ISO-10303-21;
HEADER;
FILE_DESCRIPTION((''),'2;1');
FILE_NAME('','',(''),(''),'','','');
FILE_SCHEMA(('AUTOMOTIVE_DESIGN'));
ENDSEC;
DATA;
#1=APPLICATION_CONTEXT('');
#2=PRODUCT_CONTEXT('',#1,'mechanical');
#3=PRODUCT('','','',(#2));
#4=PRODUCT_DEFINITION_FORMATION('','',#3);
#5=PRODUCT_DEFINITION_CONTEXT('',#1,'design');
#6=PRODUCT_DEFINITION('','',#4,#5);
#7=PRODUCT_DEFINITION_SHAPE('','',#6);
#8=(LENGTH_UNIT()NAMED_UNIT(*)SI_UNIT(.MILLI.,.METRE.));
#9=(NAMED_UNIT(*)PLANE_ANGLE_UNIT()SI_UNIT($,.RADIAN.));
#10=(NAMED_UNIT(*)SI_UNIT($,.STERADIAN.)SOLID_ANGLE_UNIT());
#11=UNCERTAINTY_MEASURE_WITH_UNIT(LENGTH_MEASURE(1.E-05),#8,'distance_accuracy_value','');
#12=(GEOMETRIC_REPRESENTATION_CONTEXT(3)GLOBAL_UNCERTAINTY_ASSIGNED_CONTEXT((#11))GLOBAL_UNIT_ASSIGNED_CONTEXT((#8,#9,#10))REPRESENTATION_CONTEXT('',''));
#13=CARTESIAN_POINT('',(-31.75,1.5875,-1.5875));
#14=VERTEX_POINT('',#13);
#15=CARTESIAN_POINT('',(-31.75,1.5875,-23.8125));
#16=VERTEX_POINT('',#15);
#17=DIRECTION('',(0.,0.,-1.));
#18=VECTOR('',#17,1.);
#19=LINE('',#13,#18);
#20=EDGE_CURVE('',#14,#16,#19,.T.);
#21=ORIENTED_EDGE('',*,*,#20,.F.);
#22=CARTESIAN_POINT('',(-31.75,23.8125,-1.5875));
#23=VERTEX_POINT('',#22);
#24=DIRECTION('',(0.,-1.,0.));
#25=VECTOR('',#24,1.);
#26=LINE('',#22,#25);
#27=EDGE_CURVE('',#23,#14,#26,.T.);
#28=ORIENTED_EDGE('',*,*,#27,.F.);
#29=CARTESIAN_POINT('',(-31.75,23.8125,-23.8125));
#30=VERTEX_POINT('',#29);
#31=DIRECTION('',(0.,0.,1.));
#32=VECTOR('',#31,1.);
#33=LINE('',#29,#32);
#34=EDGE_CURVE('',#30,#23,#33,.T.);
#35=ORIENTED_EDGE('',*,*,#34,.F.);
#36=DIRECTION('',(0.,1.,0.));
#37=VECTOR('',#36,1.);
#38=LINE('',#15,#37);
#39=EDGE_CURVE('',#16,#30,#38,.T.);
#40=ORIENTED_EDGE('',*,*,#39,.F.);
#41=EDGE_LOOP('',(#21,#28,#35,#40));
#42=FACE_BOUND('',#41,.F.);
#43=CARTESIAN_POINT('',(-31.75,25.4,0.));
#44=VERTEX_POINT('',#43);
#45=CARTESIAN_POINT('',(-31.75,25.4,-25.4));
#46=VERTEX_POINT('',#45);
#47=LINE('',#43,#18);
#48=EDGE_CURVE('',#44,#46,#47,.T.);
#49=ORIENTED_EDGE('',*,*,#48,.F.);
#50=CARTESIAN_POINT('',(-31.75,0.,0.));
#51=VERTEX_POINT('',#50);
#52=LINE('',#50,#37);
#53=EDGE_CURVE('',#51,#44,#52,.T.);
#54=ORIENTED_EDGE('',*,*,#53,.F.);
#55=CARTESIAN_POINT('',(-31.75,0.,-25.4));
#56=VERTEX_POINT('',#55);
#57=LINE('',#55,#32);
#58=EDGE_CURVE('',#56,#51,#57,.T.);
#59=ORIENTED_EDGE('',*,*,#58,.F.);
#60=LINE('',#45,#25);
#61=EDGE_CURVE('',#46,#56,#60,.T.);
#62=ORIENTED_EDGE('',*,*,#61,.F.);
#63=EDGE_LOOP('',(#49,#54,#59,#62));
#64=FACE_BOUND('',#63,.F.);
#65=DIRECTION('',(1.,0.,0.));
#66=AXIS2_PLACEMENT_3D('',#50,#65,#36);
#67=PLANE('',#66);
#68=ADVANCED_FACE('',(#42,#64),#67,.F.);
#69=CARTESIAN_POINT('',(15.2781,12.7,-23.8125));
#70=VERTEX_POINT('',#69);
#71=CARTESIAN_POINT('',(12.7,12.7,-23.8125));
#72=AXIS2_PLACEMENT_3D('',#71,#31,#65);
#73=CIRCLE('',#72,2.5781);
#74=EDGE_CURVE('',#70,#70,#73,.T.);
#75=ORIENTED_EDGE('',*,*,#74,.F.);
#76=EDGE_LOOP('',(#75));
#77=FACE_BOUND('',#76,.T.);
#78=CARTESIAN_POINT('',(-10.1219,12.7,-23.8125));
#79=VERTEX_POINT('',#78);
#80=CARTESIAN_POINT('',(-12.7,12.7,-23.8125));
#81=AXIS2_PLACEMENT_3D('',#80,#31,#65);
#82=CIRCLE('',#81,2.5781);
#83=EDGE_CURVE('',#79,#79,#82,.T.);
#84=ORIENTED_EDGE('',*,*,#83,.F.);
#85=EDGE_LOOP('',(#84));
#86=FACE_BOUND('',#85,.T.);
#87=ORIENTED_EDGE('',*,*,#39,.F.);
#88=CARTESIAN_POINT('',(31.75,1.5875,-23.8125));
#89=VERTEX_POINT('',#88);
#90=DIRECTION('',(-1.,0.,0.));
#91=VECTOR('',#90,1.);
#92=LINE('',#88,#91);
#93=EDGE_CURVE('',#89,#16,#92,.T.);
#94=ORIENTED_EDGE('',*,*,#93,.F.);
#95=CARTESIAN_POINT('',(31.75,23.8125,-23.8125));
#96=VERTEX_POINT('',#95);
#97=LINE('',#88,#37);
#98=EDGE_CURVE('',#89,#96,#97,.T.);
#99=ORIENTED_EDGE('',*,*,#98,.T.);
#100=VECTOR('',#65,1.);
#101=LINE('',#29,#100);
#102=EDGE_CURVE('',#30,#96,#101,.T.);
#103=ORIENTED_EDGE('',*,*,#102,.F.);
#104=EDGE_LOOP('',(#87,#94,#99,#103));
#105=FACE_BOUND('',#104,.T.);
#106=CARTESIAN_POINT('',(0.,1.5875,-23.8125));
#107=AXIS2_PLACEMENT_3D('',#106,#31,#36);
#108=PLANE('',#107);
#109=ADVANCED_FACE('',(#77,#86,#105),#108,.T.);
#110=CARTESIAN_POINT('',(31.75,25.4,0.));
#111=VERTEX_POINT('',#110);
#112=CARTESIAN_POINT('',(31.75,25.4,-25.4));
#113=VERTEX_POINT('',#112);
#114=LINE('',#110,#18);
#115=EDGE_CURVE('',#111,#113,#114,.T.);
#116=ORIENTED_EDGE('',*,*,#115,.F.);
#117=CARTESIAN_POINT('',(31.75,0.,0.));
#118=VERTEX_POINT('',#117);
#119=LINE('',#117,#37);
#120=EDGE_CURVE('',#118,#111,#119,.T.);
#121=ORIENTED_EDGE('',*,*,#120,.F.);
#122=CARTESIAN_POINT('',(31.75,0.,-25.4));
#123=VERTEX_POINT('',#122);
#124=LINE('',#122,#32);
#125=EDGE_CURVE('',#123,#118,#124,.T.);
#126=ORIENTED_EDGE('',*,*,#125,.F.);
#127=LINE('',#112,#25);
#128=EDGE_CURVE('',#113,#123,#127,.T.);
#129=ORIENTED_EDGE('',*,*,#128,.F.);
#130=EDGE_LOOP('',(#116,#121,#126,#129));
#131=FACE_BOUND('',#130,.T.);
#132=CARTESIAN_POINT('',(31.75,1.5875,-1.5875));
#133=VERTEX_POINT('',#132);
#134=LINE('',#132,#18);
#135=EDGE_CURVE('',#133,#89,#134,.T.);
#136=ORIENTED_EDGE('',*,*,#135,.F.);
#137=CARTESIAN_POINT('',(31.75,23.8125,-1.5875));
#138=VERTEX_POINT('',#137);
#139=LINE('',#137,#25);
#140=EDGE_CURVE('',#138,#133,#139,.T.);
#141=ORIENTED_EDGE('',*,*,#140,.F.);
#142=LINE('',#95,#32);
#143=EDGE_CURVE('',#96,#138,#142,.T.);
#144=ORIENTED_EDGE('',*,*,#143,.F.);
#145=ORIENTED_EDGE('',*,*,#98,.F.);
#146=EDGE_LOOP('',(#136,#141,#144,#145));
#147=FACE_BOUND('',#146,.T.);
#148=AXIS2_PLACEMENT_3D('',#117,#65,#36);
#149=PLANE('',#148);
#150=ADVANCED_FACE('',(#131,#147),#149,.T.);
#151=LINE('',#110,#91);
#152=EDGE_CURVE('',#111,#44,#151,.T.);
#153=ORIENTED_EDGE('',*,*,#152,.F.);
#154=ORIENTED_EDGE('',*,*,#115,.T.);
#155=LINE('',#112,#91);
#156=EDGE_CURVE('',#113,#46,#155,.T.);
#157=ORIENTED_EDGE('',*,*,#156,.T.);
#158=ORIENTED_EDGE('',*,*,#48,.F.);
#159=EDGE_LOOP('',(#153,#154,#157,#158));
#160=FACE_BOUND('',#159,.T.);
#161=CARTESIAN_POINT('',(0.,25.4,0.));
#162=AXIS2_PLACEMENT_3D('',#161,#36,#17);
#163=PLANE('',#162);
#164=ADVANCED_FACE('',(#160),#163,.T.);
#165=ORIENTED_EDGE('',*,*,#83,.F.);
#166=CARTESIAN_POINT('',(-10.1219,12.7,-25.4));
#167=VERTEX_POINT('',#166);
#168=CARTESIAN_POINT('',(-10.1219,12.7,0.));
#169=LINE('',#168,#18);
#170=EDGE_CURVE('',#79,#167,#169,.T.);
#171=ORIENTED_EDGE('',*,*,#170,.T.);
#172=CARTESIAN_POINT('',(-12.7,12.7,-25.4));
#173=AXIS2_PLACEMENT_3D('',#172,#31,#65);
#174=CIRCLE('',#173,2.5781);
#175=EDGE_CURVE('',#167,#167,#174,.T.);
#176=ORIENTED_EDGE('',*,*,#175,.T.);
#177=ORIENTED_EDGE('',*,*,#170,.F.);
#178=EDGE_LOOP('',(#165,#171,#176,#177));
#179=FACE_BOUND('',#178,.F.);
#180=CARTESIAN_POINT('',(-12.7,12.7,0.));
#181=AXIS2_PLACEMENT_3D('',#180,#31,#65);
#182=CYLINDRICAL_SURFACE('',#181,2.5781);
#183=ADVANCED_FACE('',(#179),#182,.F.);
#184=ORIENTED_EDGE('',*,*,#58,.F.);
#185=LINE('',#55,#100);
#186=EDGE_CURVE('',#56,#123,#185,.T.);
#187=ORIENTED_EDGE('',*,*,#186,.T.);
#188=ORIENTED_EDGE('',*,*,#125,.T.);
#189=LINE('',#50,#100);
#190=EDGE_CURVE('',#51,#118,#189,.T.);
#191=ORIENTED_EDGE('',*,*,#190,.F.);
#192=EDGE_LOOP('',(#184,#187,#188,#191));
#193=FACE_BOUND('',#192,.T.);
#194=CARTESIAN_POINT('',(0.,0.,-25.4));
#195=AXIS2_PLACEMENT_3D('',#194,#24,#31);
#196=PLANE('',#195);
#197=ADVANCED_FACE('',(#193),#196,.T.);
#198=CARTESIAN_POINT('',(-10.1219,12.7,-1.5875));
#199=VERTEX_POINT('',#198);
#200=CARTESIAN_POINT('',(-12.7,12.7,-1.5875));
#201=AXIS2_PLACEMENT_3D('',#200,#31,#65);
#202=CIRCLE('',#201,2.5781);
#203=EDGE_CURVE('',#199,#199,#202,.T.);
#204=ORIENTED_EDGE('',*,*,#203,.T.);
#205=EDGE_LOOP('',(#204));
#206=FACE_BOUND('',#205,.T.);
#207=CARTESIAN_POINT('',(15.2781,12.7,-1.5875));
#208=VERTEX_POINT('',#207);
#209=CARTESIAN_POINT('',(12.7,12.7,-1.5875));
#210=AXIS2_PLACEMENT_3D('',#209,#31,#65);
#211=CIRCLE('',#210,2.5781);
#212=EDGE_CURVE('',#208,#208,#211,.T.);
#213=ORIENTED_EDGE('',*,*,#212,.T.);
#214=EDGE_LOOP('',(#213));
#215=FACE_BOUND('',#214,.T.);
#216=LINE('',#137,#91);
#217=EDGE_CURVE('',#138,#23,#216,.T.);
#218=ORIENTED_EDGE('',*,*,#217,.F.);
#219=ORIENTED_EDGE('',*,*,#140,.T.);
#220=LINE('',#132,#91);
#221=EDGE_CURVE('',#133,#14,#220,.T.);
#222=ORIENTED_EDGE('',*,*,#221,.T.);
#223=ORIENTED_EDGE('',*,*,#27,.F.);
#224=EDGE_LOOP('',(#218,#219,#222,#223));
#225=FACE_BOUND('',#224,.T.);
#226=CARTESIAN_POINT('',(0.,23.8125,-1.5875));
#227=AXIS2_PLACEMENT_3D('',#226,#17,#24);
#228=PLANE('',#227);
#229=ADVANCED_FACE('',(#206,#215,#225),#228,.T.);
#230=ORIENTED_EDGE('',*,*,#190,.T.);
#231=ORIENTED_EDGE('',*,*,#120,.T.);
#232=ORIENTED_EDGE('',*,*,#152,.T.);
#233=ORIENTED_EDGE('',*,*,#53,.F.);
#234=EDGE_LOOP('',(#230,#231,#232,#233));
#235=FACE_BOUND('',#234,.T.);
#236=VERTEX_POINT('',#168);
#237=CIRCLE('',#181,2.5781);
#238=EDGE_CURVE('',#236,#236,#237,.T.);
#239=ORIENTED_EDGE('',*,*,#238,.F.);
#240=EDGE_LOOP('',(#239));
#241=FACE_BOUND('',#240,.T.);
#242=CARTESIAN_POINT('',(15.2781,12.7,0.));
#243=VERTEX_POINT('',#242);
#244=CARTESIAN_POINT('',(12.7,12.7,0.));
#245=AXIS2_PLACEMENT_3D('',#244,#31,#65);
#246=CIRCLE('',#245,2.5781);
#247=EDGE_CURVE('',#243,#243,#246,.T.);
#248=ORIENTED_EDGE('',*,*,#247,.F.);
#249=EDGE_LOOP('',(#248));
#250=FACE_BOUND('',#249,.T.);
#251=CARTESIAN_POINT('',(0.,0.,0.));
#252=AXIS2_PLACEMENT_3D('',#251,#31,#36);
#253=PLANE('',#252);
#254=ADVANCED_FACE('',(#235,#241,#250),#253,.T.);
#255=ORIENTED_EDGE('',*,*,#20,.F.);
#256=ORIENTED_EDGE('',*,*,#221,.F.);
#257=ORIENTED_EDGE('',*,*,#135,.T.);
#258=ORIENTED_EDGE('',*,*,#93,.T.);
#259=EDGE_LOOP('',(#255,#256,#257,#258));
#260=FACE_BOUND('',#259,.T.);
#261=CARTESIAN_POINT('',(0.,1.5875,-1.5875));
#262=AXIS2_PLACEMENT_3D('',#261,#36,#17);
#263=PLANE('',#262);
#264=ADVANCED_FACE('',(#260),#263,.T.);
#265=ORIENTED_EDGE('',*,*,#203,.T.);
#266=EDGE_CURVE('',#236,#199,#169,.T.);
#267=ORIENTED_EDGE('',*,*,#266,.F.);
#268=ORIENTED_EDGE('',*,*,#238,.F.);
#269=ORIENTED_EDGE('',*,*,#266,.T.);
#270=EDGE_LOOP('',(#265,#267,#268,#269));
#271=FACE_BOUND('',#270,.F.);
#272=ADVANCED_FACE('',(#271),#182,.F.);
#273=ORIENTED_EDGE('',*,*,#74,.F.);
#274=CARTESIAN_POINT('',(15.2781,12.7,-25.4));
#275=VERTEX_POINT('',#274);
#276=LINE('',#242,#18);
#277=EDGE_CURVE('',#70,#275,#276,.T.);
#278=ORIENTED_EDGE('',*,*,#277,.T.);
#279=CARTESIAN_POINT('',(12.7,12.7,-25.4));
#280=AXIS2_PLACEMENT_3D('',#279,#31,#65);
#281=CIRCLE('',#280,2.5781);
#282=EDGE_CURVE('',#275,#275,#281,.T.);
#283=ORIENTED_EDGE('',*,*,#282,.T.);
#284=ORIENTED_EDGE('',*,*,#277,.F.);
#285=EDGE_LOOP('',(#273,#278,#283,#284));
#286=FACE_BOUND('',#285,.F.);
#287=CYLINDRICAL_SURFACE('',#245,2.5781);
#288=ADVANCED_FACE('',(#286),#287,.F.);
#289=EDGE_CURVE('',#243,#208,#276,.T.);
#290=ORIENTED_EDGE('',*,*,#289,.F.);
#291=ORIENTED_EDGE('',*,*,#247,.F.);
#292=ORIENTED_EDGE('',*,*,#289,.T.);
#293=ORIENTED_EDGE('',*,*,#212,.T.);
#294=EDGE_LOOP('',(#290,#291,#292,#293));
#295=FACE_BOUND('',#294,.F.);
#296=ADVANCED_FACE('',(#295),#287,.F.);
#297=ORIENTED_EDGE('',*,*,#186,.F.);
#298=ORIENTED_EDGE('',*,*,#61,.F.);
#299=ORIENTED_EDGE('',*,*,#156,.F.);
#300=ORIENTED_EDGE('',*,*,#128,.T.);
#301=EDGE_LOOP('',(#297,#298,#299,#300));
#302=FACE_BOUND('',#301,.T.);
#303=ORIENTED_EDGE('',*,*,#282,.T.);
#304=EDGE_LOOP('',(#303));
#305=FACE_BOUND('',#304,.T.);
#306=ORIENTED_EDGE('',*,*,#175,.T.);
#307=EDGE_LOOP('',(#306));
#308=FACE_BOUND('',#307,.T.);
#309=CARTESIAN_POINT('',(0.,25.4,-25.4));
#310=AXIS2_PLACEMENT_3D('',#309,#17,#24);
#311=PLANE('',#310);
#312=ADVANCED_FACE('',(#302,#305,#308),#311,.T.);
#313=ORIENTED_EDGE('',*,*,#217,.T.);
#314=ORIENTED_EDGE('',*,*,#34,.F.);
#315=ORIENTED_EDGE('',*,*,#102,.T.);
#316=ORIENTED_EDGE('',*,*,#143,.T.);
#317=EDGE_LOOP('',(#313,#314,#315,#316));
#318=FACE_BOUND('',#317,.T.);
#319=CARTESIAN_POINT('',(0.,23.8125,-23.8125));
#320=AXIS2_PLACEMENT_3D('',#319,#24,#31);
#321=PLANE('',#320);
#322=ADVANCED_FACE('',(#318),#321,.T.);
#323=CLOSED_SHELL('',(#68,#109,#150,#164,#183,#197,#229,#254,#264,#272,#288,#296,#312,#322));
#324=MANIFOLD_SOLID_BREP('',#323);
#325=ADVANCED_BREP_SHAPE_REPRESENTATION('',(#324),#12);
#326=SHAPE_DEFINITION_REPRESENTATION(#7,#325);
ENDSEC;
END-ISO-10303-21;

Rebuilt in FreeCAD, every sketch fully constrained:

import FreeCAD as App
import Part
import Sketcher

V = App.Vector
Q = App.Units.Quantity

doc = App.newDocument("Part")
body = doc.addObject("PartDesign::Body", "Body")

# Sketch on YZ plane
sketch1 = body.newObject("Sketcher::SketchObject", "Sketch")
sketch1.AttachmentSupport = (doc.getObject("YZ_Plane"), [""])
sketch1.MapMode = "FlatFace"
sketch1.addGeometry(Part.LineSegment(V(25.4, 0, 0), V(0, 0, 0)), False)
sketch1.addGeometry(Part.LineSegment(V(0, 0, 0), V(0, -25.4, 0)), False)
sketch1.addGeometry(Part.LineSegment(V(0, -25.4, 0), V(25.4, -25.4, 0)), False)
sketch1.addGeometry(Part.LineSegment(V(25.4, -25.4, 0), V(25.4, 0, 0)), False)
sketch1.addGeometry(Part.LineSegment(V(23.8125, -1.5875, 0), V(23.8125, -23.8125, 0)), False)
sketch1.addGeometry(Part.LineSegment(V(23.8125, -23.8125, 0), V(1.5875, -23.8125, 0)), False)
sketch1.addGeometry(Part.LineSegment(V(1.5875, -23.8125, 0), V(1.5875, -1.5875, 0)), False)
sketch1.addGeometry(Part.LineSegment(V(1.5875, -1.5875, 0), V(23.8125, -1.5875, 0)), False)
sketch1.addConstraint(Sketcher.Constraint("Coincident", 0, 2, 1, 1))
sketch1.addConstraint(Sketcher.Constraint("Coincident", 1, 2, 2, 1))
sketch1.addConstraint(Sketcher.Constraint("Coincident", 2, 2, 3, 1))
sketch1.addConstraint(Sketcher.Constraint("Coincident", 3, 2, 0, 1))
sketch1.addConstraint(Sketcher.Constraint("Coincident", 4, 2, 5, 1))
sketch1.addConstraint(Sketcher.Constraint("Coincident", 5, 2, 6, 1))
sketch1.addConstraint(Sketcher.Constraint("Coincident", 6, 2, 7, 1))
sketch1.addConstraint(Sketcher.Constraint("Coincident", 7, 2, 4, 1))
sketch1.addConstraint(Sketcher.Constraint("Horizontal", 0))
sketch1.addConstraint(Sketcher.Constraint("Vertical", 1))
sketch1.addConstraint(Sketcher.Constraint("Horizontal", 2))
sketch1.addConstraint(Sketcher.Constraint("Vertical", 3))
sketch1.addConstraint(Sketcher.Constraint("Vertical", 4))
sketch1.addConstraint(Sketcher.Constraint("Horizontal", 5))
sketch1.addConstraint(Sketcher.Constraint("Vertical", 6))
sketch1.addConstraint(Sketcher.Constraint("Horizontal", 7))
sketch1.addConstraint(Sketcher.Constraint("Coincident", 0, 2, -1, 1))
sketch1.addConstraint(Sketcher.Constraint("Equal", 2, 1))
sketch1.addConstraint(Sketcher.Constraint("Equal", 7, 4))
sketch1.addConstraint(Sketcher.Constraint("DistanceX", 0, 2, 0, 1, Q("1 in")))
sketch1.addConstraint(Sketcher.Constraint("DistanceX", -1, 1, 5, 2, Q("0.0625 in")))
sketch1.addConstraint(Sketcher.Constraint("DistanceY", 6, 2, -1, 1, Q("0.0625 in")))
sketch1.addConstraint(Sketcher.Constraint("DistanceX", 4, 2, 2, 2, Q("0.0625 in")))
pad1 = body.newObject("PartDesign::Pad", "Pad")
pad1.Profile = sketch1
pad1.Length = Q("2.5 in")
pad1.Midplane = True

# Sketch on XY plane
sketch2 = body.newObject("Sketcher::SketchObject", "Sketch001")
sketch2.AttachmentSupport = (doc.getObject("XY_Plane"), [""])
sketch2.MapMode = "FlatFace"
sketch2.addGeometry(Part.Circle(V(-12.7, 12.7, 0), V(0, 0, 1), 2.5781), False)
sketch2.addGeometry(Part.Circle(V(12.7, 12.7, 0), V(0, 0, 1), 2.5781), False)
sketch2.addConstraint(Sketcher.Constraint("Equal", 0, 1))
sketch2.addConstraint(Sketcher.Constraint("Symmetric", 0, 3, 1, 3, -2))
sketch2.addConstraint(Sketcher.Constraint("Diameter", 0, Q("0.203 in")))
sketch2.addConstraint(Sketcher.Constraint("DistanceX", 0, 3, 1, 3, Q("1 in")))
sketch2.addConstraint(Sketcher.Constraint("DistanceY", -1, 1, 0, 3, Q("0.5 in")))
pocket1 = body.newObject("PartDesign::Pocket", "Pocket")
pocket1.Profile = sketch2
pocket1.Length = Q("1 in")

doc.recompute()
